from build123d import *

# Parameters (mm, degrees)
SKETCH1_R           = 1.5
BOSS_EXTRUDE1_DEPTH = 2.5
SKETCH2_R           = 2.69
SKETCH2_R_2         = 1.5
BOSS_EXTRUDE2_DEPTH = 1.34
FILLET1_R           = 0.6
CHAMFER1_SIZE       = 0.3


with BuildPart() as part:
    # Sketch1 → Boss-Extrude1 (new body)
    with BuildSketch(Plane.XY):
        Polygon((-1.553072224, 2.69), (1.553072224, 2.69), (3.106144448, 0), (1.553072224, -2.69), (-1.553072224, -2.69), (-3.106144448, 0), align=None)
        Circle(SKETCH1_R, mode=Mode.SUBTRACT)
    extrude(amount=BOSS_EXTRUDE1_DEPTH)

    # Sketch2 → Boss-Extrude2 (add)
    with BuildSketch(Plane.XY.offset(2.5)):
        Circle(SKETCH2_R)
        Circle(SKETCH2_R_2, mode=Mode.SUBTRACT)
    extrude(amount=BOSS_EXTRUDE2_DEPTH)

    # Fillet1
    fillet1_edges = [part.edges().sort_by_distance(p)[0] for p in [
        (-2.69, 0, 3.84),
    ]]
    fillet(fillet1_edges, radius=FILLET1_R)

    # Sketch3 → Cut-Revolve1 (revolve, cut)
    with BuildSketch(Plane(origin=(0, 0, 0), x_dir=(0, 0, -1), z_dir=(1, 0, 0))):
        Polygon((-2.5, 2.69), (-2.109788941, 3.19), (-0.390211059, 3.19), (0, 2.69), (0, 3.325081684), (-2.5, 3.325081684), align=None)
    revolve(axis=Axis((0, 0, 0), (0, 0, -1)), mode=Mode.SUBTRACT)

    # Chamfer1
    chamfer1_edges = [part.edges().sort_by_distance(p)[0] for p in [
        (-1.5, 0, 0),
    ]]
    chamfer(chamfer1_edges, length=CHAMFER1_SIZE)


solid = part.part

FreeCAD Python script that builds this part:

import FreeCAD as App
import Part
import Sketcher
from FreeCAD import Vector
Q = App.Units.Quantity


def edges_at(feature, points):
    """Names of the edges that pass closest to the given points."""
    edges = feature.Shape.Edges
    near = lambda p: min(range(len(edges)), key=lambda i: edges[i].distToShape(Part.Vertex(*p))[0])
    return sorted({f"Edge{near(p) + 1}" for p in points})

doc = App.newDocument("Part")
body = doc.addObject("PartDesign::Body", "Body")

sketch1 = body.newObject("Sketcher::SketchObject", "Sketch")
sketch1.AttachmentSupport = (doc.getObject("XY_Plane"), [""])
sketch1.MapMode = "FlatFace"
sketch1.addGeometry([
    Part.LineSegment(Vector(1.553072, 2.69, 0), Vector(-1.553072, 2.69, 0)),
    Part.LineSegment(Vector(-1.553072, 2.69, 0), Vector(-3.106144, 0, 0)),
    Part.LineSegment(Vector(-3.106144, 0, 0), Vector(-1.553072, -2.69, 0)),
    Part.LineSegment(Vector(-1.553072, -2.69, 0), Vector(1.553072, -2.69, 0)),
    Part.LineSegment(Vector(1.553072, -2.69, 0), Vector(3.106144, 0, 0)),
    Part.LineSegment(Vector(3.106144, 0, 0), Vector(1.553072, 2.69, 0)),
    Part.Circle(Vector(0, 0, 0), Vector(0, 0, 1), 1.5),
], False)
sketch1.addConstraint([
    Sketcher.Constraint("Coincident", 0, 2, 1, 1),
    Sketcher.Constraint("Coincident", 1, 2, 2, 1),
    Sketcher.Constraint("Coincident", 2, 2, 3, 1),
    Sketcher.Constraint("Coincident", 3, 2, 4, 1),
    Sketcher.Constraint("Coincident", 4, 2, 5, 1),
    Sketcher.Constraint("Coincident", 5, 2, 0, 1),
    Sketcher.Constraint("Horizontal", 0),
    Sketcher.Constraint("Horizontal", 3),
    Sketcher.Constraint("Coincident", 6, 3, -1, 1),
    Sketcher.Constraint("Symmetric", 0, 2, 3, 2, -1, 1),
    Sketcher.Constraint("Symmetric", 1, 2, 4, 2, -1, 1),
    Sketcher.Constraint("PointOnObject", 1, 2, -1),
    Sketcher.Constraint("Parallel", 2, 5),
    Sketcher.Constraint("Vertical", 0, 2, 2, 2),
    Sketcher.Constraint("Diameter", 6, 3.0),
    Sketcher.Constraint("Angle", 1, Q("-120 deg")),
    Sketcher.Constraint("DistanceY", -1, 1, 0, 2, 2.69),
    Sketcher.Constraint("DistanceX", 0, 2, 0, 1, 3.106144),
])
pad1 = body.newObject("PartDesign::Pad", "Pad")
pad1.Profile = sketch1
pad1.Length = 2.5

sketch2 = body.newObject("Sketcher::SketchObject", "Sketch001")
sketch2.AttachmentSupport = (doc.getObject("XY_Plane"), [""])
sketch2.MapMode = "FlatFace"
sketch2.AttachmentOffset = App.Placement(Vector(0, 0, 2.5), App.Rotation())
sketch2.addGeometry([
    Part.Circle(Vector(0, 0, 0), Vector(0, 0, 1), 2.69),
    Part.Circle(Vector(0, 0, 0), Vector(0, 0, 1), 1.5),
], False)
sketch2.addConstraint([
    Sketcher.Constraint("Coincident", 0, 3, -1, 1),
    Sketcher.Constraint("Coincident", 1, 3, -1, 1),
    Sketcher.Constraint("Diameter", 1, 3.0),
    Sketcher.Constraint("Diameter", 0, 5.38),
])
pad2 = body.newObject("PartDesign::Pad", "Pad001")
pad2.Profile = sketch2
pad2.Length = 1.34
doc.recompute()

fillet = body.newObject("PartDesign::Fillet", "Fillet")
fillet.Base = (pad2, edges_at(pad2, [(-2.69, 0, 3.84)]))
fillet.Radius = 0.6

sketch3 = body.newObject("Sketcher::SketchObject", "Sketch002")
sketch3.AttachmentSupport = (doc.getObject("YZ_Plane"), [""])
sketch3.MapMode = "FlatFace"
sketch3.addGeometry([
    Part.LineSegment(Vector(2.69, 2.5, 0), Vector(3.19, 2.109789, 0)),
    Part.LineSegment(Vector(3.19, 2.109789, 0), Vector(3.19, 0.390211, 0)),
    Part.LineSegment(Vector(3.19, 0.390211, 0), Vector(2.69, 0, 0)),
    Part.LineSegment(Vector(2.69, 0, 0), Vector(3.325082, 0, 0)),
    Part.LineSegment(Vector(3.325082, 0, 0), Vector(3.325082, 2.5, 0)),
    Part.LineSegment(Vector(3.325082, 2.5, 0), Vector(2.69, 2.5, 0)),
], False)
sketch3.addConstraint([
    Sketcher.Constraint("Coincident", 0, 2, 1, 1),
    Sketcher.Constraint("Coincident", 1, 2, 2, 1),
    Sketcher.Constraint("Coincident", 2, 2, 3, 1),
    Sketcher.Constraint("Coincident", 3, 2, 4, 1),
    Sketcher.Constraint("Coincident", 4, 2, 5, 1),
    Sketcher.Constraint("Coincident", 5, 2, 0, 1),
    Sketcher.Constraint("Vertical", 1),
    Sketcher.Constraint("Horizontal", 3),
    Sketcher.Constraint("Vertical", 4),
    Sketcher.Constraint("Horizontal", 5),
    Sketcher.Constraint("PointOnObject", 2, 2, -1),
    Sketcher.Constraint("Vertical", 2, 2, 5, 2),
    Sketcher.Constraint("Equal", 0, 2),
    Sketcher.Constraint("DistanceY", 4, 1, 4, 2, 2.5),
    Sketcher.Constraint("DistanceX", 2, 2, 1, 2, 0.5),
    Sketcher.Constraint("DistanceX", -1, 1, 0, 2, 3.19),
    Sketcher.Constraint("DistanceX", 3, 1, 3, 2, 0.635082),
    Sketcher.Constraint("DistanceY", 1, 2, 1, 1, 1.719578),
])
groove = body.newObject("PartDesign::Groove", "Groove")
groove.Profile = sketch3
groove.ReferenceAxis = (sketch3, ["V_Axis"])
groove.Angle = 360
doc.recompute()

chamfer = body.newObject("PartDesign::Chamfer", "Chamfer")
chamfer.Base = (groove, edges_at(groove, [(-1.5, 0, 0)]))
chamfer.Size = 0.3

doc.recompute()
